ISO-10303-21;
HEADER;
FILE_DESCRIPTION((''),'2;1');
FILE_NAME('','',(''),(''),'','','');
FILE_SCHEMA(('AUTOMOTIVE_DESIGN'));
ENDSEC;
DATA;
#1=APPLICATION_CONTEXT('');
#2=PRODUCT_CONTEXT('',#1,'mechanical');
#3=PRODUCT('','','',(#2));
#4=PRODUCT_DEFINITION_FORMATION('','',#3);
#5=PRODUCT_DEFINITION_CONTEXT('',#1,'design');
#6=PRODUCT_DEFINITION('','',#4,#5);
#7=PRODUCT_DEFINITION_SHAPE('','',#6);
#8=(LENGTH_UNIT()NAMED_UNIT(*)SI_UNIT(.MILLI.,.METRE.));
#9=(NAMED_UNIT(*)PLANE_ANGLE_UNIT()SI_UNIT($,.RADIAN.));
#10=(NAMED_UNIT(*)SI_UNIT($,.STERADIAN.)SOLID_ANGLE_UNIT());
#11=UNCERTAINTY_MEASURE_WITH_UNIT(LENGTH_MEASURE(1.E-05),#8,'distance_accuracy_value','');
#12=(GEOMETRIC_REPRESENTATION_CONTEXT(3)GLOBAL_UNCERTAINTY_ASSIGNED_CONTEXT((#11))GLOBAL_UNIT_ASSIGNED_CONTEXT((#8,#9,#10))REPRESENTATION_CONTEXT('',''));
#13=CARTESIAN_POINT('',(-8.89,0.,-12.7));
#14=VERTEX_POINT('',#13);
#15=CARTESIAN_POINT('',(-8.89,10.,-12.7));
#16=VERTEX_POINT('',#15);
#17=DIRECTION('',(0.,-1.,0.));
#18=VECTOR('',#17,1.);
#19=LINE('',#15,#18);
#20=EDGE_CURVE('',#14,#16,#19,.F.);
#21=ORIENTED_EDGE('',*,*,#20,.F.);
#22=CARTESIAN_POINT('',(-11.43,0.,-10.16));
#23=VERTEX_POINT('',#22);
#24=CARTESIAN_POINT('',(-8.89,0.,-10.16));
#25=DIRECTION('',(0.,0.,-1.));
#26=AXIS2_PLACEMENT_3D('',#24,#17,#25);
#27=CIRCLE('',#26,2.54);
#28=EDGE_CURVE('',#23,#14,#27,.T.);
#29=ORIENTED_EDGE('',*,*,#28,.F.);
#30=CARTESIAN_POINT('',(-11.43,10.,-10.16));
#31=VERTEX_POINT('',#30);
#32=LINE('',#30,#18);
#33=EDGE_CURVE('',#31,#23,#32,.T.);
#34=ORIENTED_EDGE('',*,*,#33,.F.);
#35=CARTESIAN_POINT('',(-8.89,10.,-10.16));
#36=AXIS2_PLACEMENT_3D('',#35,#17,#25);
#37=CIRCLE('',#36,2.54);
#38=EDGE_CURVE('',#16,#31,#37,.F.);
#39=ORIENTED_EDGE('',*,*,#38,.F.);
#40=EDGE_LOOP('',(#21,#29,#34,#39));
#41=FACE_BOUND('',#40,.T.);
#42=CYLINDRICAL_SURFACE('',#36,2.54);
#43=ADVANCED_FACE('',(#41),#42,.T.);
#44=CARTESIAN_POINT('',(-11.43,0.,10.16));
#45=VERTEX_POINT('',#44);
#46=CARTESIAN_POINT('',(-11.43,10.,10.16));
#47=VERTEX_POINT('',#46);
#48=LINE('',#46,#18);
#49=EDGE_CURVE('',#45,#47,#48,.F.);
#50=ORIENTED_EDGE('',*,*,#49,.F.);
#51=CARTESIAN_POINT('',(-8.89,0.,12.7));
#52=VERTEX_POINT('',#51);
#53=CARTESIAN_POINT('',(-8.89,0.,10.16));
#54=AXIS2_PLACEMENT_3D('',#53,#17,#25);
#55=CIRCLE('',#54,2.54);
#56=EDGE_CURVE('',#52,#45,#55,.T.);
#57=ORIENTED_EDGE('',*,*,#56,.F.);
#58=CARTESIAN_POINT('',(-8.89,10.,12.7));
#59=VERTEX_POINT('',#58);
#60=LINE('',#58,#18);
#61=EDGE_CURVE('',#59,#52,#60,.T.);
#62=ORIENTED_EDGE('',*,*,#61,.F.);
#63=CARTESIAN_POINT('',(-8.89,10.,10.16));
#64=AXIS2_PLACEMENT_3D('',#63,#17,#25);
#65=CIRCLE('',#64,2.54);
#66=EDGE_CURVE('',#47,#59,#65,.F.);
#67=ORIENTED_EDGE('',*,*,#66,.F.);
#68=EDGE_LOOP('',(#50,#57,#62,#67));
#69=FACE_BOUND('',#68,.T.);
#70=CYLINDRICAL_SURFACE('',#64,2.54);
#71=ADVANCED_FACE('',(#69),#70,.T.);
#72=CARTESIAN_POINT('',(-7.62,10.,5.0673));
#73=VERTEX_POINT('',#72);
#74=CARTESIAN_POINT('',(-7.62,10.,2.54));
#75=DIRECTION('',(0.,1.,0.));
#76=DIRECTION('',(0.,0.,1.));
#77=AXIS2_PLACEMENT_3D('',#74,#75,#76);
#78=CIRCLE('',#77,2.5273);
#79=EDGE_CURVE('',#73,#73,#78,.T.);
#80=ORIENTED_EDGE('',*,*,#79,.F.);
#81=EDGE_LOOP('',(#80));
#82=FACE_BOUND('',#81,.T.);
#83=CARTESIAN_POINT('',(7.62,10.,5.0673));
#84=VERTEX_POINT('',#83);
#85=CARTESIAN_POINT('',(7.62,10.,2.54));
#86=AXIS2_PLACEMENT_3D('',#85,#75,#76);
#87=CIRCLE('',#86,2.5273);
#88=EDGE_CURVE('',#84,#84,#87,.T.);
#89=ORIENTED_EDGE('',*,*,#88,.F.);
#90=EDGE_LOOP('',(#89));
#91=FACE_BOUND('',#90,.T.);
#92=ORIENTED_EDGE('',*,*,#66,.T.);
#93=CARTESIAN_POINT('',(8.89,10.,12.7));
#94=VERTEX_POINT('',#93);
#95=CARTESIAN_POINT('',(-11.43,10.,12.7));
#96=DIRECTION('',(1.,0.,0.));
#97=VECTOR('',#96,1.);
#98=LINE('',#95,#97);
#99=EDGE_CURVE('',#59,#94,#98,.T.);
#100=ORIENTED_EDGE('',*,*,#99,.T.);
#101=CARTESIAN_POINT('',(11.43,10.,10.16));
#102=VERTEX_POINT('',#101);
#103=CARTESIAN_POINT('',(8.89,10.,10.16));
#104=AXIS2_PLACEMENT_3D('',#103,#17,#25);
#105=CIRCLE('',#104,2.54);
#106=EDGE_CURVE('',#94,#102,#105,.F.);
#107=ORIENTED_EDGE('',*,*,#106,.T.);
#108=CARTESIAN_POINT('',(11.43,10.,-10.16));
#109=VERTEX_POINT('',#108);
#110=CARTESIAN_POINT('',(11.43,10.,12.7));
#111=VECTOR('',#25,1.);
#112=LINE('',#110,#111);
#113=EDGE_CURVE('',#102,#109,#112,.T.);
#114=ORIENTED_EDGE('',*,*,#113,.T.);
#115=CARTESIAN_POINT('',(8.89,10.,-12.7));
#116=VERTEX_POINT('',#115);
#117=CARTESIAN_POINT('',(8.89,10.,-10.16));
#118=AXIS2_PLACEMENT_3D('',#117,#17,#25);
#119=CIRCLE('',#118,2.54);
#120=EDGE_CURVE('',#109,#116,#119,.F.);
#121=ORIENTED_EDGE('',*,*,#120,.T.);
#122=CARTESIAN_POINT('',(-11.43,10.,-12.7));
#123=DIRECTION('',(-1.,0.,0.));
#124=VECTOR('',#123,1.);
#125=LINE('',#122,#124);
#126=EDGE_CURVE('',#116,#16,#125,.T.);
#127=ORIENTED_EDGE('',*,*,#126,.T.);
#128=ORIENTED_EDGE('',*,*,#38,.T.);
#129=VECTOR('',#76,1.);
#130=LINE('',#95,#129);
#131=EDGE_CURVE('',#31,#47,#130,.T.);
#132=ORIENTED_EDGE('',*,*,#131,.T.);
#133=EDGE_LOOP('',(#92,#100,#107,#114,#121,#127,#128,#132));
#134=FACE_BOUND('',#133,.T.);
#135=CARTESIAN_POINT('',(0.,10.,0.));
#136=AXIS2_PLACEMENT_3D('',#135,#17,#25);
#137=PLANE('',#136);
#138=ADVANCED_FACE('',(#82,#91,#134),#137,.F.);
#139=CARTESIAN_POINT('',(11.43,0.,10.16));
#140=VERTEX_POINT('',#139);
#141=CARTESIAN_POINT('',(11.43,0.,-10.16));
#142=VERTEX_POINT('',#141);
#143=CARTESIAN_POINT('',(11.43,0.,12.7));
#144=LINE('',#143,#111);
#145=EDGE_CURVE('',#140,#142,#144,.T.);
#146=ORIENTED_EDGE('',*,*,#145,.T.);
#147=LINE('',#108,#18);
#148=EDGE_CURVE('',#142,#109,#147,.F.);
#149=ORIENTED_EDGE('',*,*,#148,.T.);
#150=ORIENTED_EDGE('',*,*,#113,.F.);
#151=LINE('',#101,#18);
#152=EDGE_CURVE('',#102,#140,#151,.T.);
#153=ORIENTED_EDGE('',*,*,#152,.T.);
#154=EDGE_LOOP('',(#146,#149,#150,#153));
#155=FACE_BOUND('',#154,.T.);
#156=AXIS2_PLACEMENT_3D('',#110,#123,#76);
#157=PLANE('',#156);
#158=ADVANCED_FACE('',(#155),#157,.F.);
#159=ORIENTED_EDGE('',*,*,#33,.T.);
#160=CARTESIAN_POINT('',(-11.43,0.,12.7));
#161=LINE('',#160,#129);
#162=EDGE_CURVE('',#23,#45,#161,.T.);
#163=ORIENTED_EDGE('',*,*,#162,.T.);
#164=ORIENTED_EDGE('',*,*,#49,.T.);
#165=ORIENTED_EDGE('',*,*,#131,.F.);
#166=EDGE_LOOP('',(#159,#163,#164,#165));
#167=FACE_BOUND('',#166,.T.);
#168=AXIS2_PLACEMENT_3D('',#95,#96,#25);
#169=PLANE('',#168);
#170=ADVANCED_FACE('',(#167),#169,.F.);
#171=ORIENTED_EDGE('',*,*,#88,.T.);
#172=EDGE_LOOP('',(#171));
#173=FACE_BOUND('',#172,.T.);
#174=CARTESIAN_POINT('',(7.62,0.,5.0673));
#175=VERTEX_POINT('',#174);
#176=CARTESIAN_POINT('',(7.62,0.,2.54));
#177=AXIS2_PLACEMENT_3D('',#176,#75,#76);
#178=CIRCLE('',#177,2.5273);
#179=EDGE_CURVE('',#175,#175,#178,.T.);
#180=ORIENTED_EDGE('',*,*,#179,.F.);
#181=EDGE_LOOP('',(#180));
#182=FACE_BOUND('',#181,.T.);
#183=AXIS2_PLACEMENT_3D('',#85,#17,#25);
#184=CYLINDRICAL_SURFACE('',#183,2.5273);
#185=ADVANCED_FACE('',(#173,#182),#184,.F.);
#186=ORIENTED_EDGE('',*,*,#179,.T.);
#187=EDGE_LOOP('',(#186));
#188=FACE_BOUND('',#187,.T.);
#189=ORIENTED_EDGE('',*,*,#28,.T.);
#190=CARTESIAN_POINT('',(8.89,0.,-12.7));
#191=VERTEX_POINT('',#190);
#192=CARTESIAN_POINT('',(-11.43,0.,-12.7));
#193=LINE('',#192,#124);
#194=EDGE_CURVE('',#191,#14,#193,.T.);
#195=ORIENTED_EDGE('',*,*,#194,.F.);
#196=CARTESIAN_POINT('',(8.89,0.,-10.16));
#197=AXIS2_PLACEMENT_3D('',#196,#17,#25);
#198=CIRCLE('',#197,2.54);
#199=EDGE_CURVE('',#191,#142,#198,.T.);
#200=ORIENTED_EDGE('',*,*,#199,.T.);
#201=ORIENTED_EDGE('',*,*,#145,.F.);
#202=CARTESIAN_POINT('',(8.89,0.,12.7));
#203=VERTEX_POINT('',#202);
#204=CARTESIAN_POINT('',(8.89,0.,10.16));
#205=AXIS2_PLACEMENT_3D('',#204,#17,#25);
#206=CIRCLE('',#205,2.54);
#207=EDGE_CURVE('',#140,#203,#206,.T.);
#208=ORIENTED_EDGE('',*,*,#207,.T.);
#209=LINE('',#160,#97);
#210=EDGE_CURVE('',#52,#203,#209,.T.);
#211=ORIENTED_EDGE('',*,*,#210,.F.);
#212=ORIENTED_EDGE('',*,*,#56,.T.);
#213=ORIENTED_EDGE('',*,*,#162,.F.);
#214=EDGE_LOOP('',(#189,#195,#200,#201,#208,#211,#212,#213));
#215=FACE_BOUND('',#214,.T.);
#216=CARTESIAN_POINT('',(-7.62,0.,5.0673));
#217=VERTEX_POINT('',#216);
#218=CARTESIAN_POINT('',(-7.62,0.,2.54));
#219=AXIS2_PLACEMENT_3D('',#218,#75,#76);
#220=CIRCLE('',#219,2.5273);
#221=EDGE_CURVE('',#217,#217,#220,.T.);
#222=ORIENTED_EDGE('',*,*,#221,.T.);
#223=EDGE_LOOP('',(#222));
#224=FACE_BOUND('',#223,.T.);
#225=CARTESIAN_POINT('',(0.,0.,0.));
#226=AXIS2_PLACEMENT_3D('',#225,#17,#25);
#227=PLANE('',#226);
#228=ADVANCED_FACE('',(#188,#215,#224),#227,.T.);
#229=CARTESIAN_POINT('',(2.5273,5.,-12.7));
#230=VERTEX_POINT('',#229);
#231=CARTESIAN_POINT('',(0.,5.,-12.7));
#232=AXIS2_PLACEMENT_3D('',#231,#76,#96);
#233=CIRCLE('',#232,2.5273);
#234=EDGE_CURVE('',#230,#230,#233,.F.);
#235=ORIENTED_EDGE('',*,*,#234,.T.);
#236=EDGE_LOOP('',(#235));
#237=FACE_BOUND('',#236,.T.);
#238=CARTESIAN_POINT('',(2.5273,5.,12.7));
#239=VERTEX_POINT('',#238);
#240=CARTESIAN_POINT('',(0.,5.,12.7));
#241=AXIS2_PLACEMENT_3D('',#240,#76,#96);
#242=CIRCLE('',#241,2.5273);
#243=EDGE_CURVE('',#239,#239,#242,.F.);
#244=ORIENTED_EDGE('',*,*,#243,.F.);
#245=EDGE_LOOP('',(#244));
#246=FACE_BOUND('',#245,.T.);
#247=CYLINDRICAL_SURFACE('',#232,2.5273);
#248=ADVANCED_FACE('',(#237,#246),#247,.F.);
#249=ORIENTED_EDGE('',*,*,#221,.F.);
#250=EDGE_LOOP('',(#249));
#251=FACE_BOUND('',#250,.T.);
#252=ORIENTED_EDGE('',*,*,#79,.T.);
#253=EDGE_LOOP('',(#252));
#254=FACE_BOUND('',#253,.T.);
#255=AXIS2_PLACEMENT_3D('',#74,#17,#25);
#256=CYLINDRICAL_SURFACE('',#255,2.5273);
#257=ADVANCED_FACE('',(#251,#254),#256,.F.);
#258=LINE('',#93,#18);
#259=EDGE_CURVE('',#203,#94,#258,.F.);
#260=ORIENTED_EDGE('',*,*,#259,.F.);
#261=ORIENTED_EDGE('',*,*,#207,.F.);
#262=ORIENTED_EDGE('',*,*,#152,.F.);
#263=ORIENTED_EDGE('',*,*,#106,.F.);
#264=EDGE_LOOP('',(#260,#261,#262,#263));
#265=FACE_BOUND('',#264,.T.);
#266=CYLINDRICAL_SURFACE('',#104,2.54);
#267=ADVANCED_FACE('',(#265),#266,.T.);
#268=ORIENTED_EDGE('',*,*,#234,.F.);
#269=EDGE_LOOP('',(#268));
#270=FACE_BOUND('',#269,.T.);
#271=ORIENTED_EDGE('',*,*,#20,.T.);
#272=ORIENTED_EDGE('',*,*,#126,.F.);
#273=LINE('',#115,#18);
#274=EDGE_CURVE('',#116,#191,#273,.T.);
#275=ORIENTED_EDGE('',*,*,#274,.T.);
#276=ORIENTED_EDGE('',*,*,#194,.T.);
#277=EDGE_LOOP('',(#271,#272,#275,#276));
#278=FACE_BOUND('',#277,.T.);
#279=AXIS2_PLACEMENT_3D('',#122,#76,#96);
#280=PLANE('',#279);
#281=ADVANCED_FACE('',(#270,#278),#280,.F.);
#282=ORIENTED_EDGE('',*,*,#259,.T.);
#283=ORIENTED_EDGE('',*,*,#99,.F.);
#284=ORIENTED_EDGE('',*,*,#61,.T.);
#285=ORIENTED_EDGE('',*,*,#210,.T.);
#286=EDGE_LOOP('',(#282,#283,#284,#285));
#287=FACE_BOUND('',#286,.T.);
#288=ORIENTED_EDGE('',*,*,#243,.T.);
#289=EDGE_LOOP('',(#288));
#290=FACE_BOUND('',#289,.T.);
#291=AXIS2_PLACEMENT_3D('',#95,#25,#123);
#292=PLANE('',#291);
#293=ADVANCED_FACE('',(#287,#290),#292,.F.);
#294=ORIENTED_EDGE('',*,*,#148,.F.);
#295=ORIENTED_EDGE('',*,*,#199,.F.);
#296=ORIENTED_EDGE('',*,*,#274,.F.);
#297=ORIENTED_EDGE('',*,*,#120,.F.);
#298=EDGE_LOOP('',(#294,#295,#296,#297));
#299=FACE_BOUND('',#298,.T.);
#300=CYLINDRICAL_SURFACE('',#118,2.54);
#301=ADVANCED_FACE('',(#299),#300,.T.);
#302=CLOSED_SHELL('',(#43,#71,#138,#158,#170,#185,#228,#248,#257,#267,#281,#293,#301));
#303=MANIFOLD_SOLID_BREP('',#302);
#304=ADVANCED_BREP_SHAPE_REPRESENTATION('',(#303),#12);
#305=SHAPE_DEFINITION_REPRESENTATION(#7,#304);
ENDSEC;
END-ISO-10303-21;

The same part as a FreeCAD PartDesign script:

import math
import FreeCAD as App
import Part
import Sketcher

V = App.Vector
Q = App.Units.Quantity


def edges_at(feature, points):
    """Names of the edges that pass closest to the given points."""
    edges = feature.Shape.Edges
    near = lambda p: min(range(len(edges)), key=lambda i: edges[i].distToShape(Part.Vertex(*p))[0])
    return sorted({f"Edge{near(p) + 1}" for p in points})

doc = App.newDocument("Part")
params = doc.addObject("Spreadsheet::Sheet", "Params")
for row, (alias, value) in enumerate([
    ("sketch1_height", "1 in"),
    ("sketch1_diameter", "0.199 in"),
    ("sketch1_width", "0.9 in"),
    ("pad1_length", "10 mm"),
    ("fillet_radius", "0.1 in"),
], start=1):
    params.set(f"A{row}", alias)
    params.set(f"B{row}", "=" + value)
    params.setAlias(f"B{row}", alias)

body = doc.addObject("PartDesign::Body", "Body")

sketch1 = body.newObject("Sketcher::SketchObject", "Sketch")
sketch1.AttachmentSupport = (doc.getObject("XZ_Plane"), [""])
sketch1.MapMode = "FlatFace"
sketch1.addGeometry(Part.LineSegment(V(-11.4, -12.7, 0), V(-11.4, 12.7, 0)), False)
sketch1.addGeometry(Part.LineSegment(V(-11.4, 12.7, 0), V(11.4, 12.7, 0)), False)
sketch1.addGeometry(Part.LineSegment(V(11.4, 12.7, 0), V(11.4, -12.7, 0)), False)
sketch1.addGeometry(Part.LineSegment(V(11.4, -12.7, 0), V(-11.4, -12.7, 0)), False)
sketch1.addGeometry(Part.Circle(V(-7.6, 2.5, 0), V(0, 0, 1), 2.5), False)
sketch1.addGeometry(Part.Circle(V(7.6, 2.5, 0), V(0, 0, 1), 2.5), False)
sketch1.addConstraint(Sketcher.Constraint("Coincident", 0, 2, 1, 1))
sketch1.addConstraint(Sketcher.Constraint("Coincident", 1, 2, 2, 1))
sketch1.addConstraint(Sketcher.Constraint("Coincident", 2, 2, 3, 1))
sketch1.addConstraint(Sketcher.Constraint("Coincident", 3, 2, 0, 1))
sketch1.addConstraint(Sketcher.Constraint("Vertical", 0))
sketch1.addConstraint(Sketcher.Constraint("Horizontal", 1))
sketch1.addConstraint(Sketcher.Constraint("Vertical", 2))
sketch1.addConstraint(Sketcher.Constraint("Horizontal", 3))
sketch1.addConstraint(Sketcher.Constraint("Equal", 4, 5))
sketch1.addConstraint(Sketcher.Constraint("Symmetric", 0, 2, 2, 2, -1, 1))
sketch1.addConstraint(Sketcher.Constraint("Symmetric", 4, 3, 5, 3, -2))
sketch1.addConstraint(Sketcher.Constraint("DistanceY", 0, 1, 0, 2, Q("1 in")))
sketch1.addConstraint(Sketcher.Constraint("Diameter", 4, Q("0.199 in")))
sketch1.addConstraint(Sketcher.Constraint("DistanceX", 1, 1, 1, 2, Q("0.9 in")))
sketch1.addConstraint(Sketcher.Constraint("DistanceX", 4, 3, -1, 1, Q("0.3 in")))
sketch1.addConstraint(Sketcher.Constraint("DistanceY", -1, 1, 4, 3, Q("0.1 in")))
sketch1.setExpression("Constraints[11]", "Params.sketch1_height")
sketch1.setExpression("Constraints[12]", "Params.sketch1_diameter")
sketch1.setExpression("Constraints[13]", "Params.sketch1_width")
pad1 = body.newObject("PartDesign::Pad", "Pad")
pad1.Profile = sketch1
pad1.setExpression("Length", "Params.pad1_length")
pad1.Reversed = True
doc.recompute()

fillet = body.newObject("PartDesign::Fillet", "Fillet")
fillet.Base = (pad1, edges_at(pad1, [
    (11.43, 5, 12.7),
    (-11.43, 5, 12.7),
    (-11.43, 5, -12.7),
    (11.43, 5, -12.7),
]))
fillet.setExpression("Radius", "Params.fillet_radius")

sketch2 = body.newObject("Sketcher::SketchObject", "Sketch001")
sketch2.AttachmentSupport = (doc.getObject("XY_Plane"), [""])
sketch2.MapMode = "FlatFace"
sketch2.AttachmentOffset = App.Placement(V(0, 0, 0.5 * 25.4), App.Rotation())
sketch2.addGeometry(Part.ArcOfCircle(Part.Circle(V(0, 5, 0), V(0, 0, 1), 2.5), math.radians(-90), math.radians(90)), False)
sketch2.addGeometry(Part.ArcOfCircle(Part.Circle(V(0, 5, 0), V(0, 0, 1), 2.5), math.radians(180), math.radians(270)), False)
sketch2.addGeometry(Part.ArcOfCircle(Part.Circle(V(0, 5, 0), V(0, 0, 1), 2.5), math.radians(90), math.radians(180)), False)
sketch2.addConstraint(Sketcher.Constraint("Tangent", 0, 1, 1, 2))
sketch2.addConstraint(Sketcher.Constraint("Tangent", 1, 1, 2, 2))
sketch2.addConstraint(Sketcher.Constraint("Tangent", 2, 1, 0, 2))
sketch2.addConstraint(Sketcher.Constraint("PointOnObject", 0, 3, -2))
sketch2.addConstraint(Sketcher.Constraint("PointOnObject", 0, 1, -2))
sketch2.addConstraint(Sketcher.Constraint("PointOnObject", 2, 1, -2))
sketch2.addConstraint(Sketcher.Constraint("Horizontal", 2, 3, 1, 1))
sketch2.addConstraint(Sketcher.Constraint("Radius", 0, Q("0.0995 in")))
sketch2.addConstraint(Sketcher.Constraint("DistanceY", -1, 1, 0, 3, Q("5 mm")))
pocket1 = body.newObject("PartDesign::Pocket", "Pocket")
pocket1.Profile = sketch2
pocket1.Type = "ThroughAll"

doc.recompute()
